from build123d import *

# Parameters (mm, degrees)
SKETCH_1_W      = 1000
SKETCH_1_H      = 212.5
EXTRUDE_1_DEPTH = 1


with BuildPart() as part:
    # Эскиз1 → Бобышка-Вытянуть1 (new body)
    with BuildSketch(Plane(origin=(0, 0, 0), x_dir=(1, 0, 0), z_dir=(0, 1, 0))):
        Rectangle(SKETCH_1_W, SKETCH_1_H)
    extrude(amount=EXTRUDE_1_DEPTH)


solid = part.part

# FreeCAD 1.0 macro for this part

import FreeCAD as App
import Part
import Sketcher
from FreeCAD import Vector

doc = App.newDocument("Part")
body = doc.addObject("PartDesign::Body", "Body")

sketch1 = doc.addObject("Sketcher::SketchObject", "Sketch")
body.addObject(sketch1)
sketch1.AttachmentSupport = (doc.XZ_Plane, [""])
sketch1.MapMode = "FlatFace"
sketch1.addGeometry(Part.LineSegment(Vector(-500, -106, 0), Vector(-500, 106, 0)), False)
sketch1.addGeometry(Part.LineSegment(Vector(-500, 106, 0), Vector(500, 106, 0)), False)
sketch1.addGeometry(Part.LineSegment(Vector(500, 106, 0), Vector(500, -106, 0)), False)
sketch1.addGeometry(Part.LineSegment(Vector(500, -106, 0), Vector(-500, -106, 0)), False)
sketch1.addConstraint(Sketcher.Constraint("Coincident", 0, 2, 1, 1))
sketch1.addConstraint(Sketcher.Constraint("Coincident", 1, 2, 2, 1))
sketch1.addConstraint(Sketcher.Constraint("Coincident", 2, 2, 3, 1))
sketch1.addConstraint(Sketcher.Constraint("Coincident", 3, 2, 0, 1))
sketch1.addConstraint(Sketcher.Constraint("Vertical", 0))
sketch1.addConstraint(Sketcher.Constraint("Horizontal", 1))
sketch1.addConstraint(Sketcher.Constraint("Vertical", 2))
sketch1.addConstraint(Sketcher.Constraint("Horizontal", 3))
sketch1.addConstraint(Sketcher.Constraint("Symmetric", 0, 2, 2, 2, -1, 1))
sketch1.addConstraint(Sketcher.Constraint("DistanceX", 1, 1, 1, 2, 1000.0))
sketch1.addConstraint(Sketcher.Constraint("DistanceY", 0, 1, 0, 2, 212.5))
pad1 = doc.addObject("PartDesign::Pad", "Pad")
body.addObject(pad1)
pad1.Profile = sketch1
pad1.Length = 1
pad1.Reversed = True

doc.recompute()
